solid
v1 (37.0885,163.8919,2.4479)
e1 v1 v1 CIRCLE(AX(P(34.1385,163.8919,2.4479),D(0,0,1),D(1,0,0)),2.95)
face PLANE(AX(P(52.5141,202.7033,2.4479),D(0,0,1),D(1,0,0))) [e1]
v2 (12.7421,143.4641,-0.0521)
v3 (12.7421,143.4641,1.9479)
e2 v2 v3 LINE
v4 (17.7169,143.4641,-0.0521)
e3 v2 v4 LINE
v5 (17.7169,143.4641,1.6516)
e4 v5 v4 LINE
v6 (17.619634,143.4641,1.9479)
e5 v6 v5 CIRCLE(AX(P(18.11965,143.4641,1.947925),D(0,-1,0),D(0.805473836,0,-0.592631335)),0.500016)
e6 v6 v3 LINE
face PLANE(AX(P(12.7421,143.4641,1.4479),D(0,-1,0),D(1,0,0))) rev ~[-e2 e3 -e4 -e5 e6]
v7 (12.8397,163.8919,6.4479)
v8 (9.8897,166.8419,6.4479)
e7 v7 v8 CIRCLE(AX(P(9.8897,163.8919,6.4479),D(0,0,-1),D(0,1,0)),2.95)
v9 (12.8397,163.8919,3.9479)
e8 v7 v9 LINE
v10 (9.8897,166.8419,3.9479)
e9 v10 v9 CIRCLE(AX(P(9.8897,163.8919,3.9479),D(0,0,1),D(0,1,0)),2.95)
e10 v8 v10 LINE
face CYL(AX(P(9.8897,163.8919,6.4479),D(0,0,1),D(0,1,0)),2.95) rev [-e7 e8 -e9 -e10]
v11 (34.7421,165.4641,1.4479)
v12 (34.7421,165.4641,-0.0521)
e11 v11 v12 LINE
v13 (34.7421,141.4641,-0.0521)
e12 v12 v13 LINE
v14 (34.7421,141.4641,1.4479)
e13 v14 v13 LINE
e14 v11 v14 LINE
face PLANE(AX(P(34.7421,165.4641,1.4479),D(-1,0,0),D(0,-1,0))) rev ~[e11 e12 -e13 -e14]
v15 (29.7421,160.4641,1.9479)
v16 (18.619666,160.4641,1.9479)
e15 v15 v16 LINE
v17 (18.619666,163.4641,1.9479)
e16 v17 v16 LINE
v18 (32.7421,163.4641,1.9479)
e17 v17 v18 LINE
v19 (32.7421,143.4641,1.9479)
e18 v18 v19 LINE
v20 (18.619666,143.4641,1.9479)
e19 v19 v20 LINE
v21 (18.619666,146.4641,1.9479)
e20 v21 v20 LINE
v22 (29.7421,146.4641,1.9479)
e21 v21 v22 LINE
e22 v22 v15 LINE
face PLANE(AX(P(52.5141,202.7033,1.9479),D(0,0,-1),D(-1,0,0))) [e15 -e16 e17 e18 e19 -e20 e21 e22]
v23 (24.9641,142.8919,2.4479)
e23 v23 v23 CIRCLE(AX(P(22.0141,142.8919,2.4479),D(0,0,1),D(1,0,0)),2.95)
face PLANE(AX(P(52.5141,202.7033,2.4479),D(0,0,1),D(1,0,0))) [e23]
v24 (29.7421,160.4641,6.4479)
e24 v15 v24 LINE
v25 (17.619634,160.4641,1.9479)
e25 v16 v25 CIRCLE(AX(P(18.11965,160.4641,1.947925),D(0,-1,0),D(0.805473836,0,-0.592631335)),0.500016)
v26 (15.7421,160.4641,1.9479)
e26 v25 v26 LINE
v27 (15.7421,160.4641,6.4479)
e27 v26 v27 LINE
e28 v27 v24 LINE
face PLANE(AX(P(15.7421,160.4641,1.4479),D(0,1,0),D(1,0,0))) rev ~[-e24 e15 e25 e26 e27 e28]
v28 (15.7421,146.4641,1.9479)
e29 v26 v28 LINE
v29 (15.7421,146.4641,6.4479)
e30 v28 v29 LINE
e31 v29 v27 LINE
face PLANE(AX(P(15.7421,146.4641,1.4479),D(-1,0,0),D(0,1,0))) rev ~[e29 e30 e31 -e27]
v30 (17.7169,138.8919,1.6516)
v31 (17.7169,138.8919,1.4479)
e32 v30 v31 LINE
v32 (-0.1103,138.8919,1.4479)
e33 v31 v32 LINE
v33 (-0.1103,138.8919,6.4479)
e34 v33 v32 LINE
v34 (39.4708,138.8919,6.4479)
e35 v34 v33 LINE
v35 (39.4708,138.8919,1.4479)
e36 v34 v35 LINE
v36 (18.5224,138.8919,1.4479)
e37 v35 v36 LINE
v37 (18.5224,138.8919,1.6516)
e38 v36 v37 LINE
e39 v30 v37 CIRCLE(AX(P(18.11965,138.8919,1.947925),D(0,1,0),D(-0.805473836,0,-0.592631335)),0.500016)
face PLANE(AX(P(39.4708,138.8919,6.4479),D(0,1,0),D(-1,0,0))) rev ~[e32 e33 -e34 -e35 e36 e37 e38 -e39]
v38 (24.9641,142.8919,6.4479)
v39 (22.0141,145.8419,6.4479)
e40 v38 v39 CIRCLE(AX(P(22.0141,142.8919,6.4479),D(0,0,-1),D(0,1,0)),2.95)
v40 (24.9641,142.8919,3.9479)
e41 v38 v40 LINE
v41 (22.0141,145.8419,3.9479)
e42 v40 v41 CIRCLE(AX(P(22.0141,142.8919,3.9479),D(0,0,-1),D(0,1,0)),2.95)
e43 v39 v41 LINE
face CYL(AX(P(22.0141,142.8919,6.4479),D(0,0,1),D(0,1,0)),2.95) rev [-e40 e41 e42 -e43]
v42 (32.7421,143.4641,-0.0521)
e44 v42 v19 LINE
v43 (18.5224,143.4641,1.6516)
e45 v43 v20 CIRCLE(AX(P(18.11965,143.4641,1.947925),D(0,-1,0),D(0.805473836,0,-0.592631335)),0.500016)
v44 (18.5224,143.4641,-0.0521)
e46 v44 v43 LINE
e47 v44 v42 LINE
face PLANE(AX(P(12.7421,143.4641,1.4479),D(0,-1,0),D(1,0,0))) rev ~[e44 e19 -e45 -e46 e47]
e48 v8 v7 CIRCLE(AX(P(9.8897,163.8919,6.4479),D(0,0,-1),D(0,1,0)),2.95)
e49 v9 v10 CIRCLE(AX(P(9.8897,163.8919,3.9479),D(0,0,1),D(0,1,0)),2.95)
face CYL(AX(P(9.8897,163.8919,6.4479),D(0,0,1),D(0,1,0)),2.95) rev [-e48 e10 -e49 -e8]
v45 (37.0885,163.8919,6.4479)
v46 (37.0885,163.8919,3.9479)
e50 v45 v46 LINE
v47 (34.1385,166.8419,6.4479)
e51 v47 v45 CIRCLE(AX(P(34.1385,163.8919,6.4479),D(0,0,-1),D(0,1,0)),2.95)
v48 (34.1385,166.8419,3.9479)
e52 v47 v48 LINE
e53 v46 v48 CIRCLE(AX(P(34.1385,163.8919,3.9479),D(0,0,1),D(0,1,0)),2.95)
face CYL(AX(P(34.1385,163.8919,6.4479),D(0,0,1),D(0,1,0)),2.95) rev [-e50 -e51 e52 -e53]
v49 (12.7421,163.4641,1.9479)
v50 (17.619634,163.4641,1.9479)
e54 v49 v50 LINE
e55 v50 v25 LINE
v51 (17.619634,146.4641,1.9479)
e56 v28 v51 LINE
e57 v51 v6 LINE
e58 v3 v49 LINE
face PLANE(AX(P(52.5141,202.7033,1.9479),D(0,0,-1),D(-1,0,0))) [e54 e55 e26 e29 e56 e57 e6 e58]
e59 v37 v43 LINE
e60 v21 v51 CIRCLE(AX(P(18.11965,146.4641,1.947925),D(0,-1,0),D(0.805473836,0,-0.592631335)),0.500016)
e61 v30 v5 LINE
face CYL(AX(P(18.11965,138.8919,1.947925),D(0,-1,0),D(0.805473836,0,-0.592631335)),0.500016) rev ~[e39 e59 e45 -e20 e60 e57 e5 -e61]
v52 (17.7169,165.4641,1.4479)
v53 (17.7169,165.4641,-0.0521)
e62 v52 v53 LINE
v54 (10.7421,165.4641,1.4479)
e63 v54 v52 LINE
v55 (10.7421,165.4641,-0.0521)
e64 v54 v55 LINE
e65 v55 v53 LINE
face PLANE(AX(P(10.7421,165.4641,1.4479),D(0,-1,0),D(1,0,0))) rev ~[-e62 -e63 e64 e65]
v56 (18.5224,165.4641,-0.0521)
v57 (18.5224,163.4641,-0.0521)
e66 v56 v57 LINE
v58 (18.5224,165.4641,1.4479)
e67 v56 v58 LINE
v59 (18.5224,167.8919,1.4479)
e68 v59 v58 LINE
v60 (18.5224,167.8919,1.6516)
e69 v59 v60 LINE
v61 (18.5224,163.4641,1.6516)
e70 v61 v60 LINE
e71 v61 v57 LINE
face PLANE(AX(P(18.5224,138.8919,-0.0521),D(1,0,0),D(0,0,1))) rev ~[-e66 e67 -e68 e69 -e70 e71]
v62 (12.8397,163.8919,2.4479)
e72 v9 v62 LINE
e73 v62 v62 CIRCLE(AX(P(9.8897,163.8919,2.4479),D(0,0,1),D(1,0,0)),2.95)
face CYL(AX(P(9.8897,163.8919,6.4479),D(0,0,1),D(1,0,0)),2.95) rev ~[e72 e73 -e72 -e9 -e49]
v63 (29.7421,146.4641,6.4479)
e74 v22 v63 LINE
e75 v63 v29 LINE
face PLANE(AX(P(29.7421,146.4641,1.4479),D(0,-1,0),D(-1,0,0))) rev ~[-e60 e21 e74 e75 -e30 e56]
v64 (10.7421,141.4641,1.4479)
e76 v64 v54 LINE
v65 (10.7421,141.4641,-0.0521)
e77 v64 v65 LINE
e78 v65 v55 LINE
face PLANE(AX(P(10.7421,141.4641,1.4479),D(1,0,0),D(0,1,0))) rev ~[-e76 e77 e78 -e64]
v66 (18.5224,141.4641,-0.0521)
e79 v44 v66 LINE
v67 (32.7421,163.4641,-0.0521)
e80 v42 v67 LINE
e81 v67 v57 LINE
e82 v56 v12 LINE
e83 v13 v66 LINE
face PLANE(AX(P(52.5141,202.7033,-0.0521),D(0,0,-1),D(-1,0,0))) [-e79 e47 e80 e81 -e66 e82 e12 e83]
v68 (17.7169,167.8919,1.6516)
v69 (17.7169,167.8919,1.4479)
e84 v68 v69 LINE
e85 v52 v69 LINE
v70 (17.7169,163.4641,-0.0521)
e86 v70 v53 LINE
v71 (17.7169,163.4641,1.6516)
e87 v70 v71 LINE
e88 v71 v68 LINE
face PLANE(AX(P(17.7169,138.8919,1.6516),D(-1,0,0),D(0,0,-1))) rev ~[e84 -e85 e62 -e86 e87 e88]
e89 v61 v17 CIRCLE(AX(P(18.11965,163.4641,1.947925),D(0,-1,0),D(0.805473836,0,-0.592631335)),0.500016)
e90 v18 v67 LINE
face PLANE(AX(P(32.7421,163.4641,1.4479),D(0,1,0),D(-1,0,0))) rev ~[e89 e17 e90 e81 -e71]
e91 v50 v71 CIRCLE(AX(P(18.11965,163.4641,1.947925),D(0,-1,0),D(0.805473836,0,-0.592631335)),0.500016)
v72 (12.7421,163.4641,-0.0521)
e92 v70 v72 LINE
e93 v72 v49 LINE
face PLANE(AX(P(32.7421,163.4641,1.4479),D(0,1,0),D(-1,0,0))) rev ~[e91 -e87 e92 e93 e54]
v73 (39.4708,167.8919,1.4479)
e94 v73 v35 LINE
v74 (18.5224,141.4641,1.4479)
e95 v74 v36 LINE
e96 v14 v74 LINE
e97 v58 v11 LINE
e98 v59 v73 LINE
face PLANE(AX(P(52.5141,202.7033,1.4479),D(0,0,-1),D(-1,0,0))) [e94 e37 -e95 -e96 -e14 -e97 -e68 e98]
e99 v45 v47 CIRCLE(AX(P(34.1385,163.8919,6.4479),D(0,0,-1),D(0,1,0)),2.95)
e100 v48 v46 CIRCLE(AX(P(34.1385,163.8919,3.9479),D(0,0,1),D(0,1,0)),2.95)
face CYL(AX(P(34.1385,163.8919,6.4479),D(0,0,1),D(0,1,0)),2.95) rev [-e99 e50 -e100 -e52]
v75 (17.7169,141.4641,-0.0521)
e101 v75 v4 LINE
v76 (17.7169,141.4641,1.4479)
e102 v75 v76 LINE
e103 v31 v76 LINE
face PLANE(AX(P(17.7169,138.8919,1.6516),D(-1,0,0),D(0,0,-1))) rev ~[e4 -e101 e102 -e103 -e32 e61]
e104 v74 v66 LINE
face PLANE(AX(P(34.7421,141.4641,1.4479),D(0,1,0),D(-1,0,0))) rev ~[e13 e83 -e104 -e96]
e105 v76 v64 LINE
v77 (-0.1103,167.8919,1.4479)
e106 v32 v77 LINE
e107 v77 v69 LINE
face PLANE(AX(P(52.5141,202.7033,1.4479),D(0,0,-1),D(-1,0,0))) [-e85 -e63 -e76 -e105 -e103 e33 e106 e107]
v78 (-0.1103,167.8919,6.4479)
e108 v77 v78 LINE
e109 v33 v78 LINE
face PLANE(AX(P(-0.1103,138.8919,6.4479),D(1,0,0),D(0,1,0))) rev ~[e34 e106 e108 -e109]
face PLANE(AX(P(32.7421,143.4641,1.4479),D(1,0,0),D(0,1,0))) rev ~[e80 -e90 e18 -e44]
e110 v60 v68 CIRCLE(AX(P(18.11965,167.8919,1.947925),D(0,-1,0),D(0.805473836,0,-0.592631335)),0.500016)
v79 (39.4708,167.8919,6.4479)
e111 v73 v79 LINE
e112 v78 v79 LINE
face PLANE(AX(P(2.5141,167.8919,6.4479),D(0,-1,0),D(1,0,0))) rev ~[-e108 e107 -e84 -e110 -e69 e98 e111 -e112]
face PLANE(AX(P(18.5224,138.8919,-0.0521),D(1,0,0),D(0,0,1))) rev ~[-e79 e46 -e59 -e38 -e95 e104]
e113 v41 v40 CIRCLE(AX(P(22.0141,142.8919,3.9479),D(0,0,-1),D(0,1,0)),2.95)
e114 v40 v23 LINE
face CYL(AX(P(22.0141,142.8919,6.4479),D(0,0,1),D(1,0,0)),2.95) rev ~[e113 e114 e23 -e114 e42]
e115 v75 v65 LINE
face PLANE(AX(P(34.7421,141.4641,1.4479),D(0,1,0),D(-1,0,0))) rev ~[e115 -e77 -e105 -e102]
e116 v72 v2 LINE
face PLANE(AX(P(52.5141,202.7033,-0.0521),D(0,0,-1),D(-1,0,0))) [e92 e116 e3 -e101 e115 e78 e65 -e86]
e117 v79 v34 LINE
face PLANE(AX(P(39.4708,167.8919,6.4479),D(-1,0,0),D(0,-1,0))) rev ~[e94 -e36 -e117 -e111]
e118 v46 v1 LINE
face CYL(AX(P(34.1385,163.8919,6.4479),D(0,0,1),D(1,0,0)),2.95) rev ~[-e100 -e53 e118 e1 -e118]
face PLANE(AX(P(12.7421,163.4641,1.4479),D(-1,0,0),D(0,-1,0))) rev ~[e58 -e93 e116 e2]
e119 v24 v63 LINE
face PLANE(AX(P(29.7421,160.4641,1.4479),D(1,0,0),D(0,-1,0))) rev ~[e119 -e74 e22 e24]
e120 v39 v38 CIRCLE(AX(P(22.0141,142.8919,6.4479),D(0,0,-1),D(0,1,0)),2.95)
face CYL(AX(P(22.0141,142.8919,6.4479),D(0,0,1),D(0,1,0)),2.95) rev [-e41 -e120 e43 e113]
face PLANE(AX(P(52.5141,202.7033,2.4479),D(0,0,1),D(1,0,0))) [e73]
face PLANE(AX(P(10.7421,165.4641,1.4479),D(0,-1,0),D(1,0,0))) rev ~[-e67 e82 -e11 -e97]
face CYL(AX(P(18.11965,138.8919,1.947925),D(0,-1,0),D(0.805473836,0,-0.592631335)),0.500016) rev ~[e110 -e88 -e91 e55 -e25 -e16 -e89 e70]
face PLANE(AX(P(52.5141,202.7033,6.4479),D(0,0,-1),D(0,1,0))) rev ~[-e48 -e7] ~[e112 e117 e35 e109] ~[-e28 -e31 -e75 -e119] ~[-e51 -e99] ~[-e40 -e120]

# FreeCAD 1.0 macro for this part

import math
import FreeCAD as App
import Part
import Sketcher
from FreeCAD import Vector

doc = App.newDocument("Part")
body = doc.addObject("PartDesign::Body", "Body")

# Sketch on XY plane
sketch1 = body.newObject("Sketcher::SketchObject", "Sketch")
sketch1.AttachmentSupport = (doc.getObject("XY_Plane"), [""])
sketch1.MapMode = "FlatFace"
sketch1.AttachmentOffset = App.Placement(Vector(0, 0, 6.4479), App.Rotation())
sketch1.addGeometry([
    Part.LineSegment(Vector(39.5, 167.9, 0), Vector(39.5, 138.9, 0)),  # 0
    Part.LineSegment(Vector(39.5, 138.9, 0), Vector(-0.1, 138.9, 0)),  # 1
    Part.LineSegment(Vector(-0.1, 138.9, 0), Vector(-0.1, 167.9, 0)),  # 2
    Part.LineSegment(Vector(-0.1, 167.9, 0), Vector(39.5, 167.9, 0)),  # 3
    Part.Circle(Vector(9.9, 163.9, 0), Vector(0, 0, 1), 3),  # 4
    Part.Circle(Vector(34.1, 163.9, 0), Vector(0, 0, 1), 3),  # 5
    Part.Circle(Vector(22, 142.9, 0), Vector(0, 0, 1), 3),  # 6
], False)
sketch1.addConstraint([
    Sketcher.Constraint("Coincident", 0, 2, 1, 1),
    Sketcher.Constraint("Coincident", 1, 2, 2, 1),
    Sketcher.Constraint("Coincident", 2, 2, 3, 1),
    Sketcher.Constraint("Coincident", 3, 2, 0, 1),
    Sketcher.Constraint("Vertical", 0),
    Sketcher.Constraint("Horizontal", 1),
    Sketcher.Constraint("Vertical", 2),
    Sketcher.Constraint("Horizontal", 3),
    Sketcher.Constraint("Equal", 4, 5),
    Sketcher.Constraint("Equal", 5, 6),
    Sketcher.Constraint("Horizontal", 4, 3, 5, 3),
    Sketcher.Constraint("Diameter", 4, 5.9),
    Sketcher.Constraint("DistanceY", 0, 2, 6, 3, 4.0),
    Sketcher.Constraint("DistanceX", 1, 2, 4, 3, 10.0),
    Sketcher.Constraint("DistanceY", 4, 3, 2, 2, 4.0),
    Sketcher.Constraint("DistanceY", 0, 2, 0, 1, 29.0),
    Sketcher.Constraint("DistanceX", 1, 2, 1, 1, 39.581),
    Sketcher.Constraint("DistanceY", -1, 1, 4, 3, 163.892),
    Sketcher.Constraint("DistanceX", -1, 1, 6, 3, 22.014),
    Sketcher.Constraint("DistanceX", -1, 1, 4, 3, 9.8897),
    Sketcher.Constraint("DistanceX", -1, 1, 5, 3, 34.1385),
])
pad1 = body.newObject("PartDesign::Pad", "Pad")
pad1.Profile = sketch1
pad1.Length = 2.5
pad1.Reversed = True

# Sketch on XY plane
sketch2 = body.newObject("Sketcher::SketchObject", "Sketch001")
sketch2.AttachmentSupport = (doc.getObject("XY_Plane"), [""])
sketch2.MapMode = "FlatFace"
sketch2.AttachmentOffset = App.Placement(Vector(0, 0, 3.9479), App.Rotation())
sketch2.addGeometry([
    Part.LineSegment(Vector(0, 168, 0), Vector(39, 168, 0)),
    Part.LineSegment(Vector(39, 168, 0), Vector(39, 139, 0)),
    Part.LineSegment(Vector(39, 139, 0), Vector(0, 139, 0)),
    Part.LineSegment(Vector(0, 139, 0), Vector(0, 168, 0)),
], False)
sketch2.addConstraint([
    Sketcher.Constraint("Coincident", 0, 2, 1, 1),
    Sketcher.Constraint("Coincident", 1, 2, 2, 1),
    Sketcher.Constraint("Coincident", 2, 2, 3, 1),
    Sketcher.Constraint("Coincident", 3, 2, 0, 1),
    Sketcher.Constraint("Horizontal", 0),
    Sketcher.Constraint("Vertical", 1),
    Sketcher.Constraint("Horizontal", 2),
    Sketcher.Constraint("Vertical", 3),
    Sketcher.Constraint("DistanceY", 1, 2, 1, 1, 29.0),
    Sketcher.Constraint("DistanceX", 0, 1, 0, 2, 39.581),
    Sketcher.Constraint("DistanceY", -1, 1, 0, 2, 167.892),
    Sketcher.Constraint("DistanceX", -1, 1, 0, 2, 39.4708),
])
pad2 = body.newObject("PartDesign::Pad", "Pad001")
pad2.Profile = sketch2
pad2.Length = 2.5
pad2.Reversed = True

# Sketch on XY plane
sketch3 = body.newObject("Sketcher::SketchObject", "Sketch002")
sketch3.AttachmentSupport = (doc.getObject("XY_Plane"), [""])
sketch3.MapMode = "FlatFace"
sketch3.AttachmentOffset = App.Placement(Vector(0, 0, 1.4479), App.Rotation())
sketch3.addGeometry([
    Part.LineSegment(Vector(16, 146, 0), Vector(16, 160, 0)),
    Part.LineSegment(Vector(16, 160, 0), Vector(30, 160, 0)),
    Part.LineSegment(Vector(30, 160, 0), Vector(30, 146, 0)),
    Part.LineSegment(Vector(30, 146, 0), Vector(16, 146, 0)),
], False)
sketch3.addConstraint([
    Sketcher.Constraint("Coincident", 0, 2, 1, 1),
    Sketcher.Constraint("Coincident", 1, 2, 2, 1),
    Sketcher.Constraint("Coincident", 2, 2, 3, 1),
    Sketcher.Constraint("Coincident", 3, 2, 0, 1),
    Sketcher.Constraint("Vertical", 0),
    Sketcher.Constraint("Horizontal", 1),
    Sketcher.Constraint("Vertical", 2),
    Sketcher.Constraint("Horizontal", 3),
    Sketcher.Constraint("Equal", 3, 0),
    Sketcher.Constraint("DistanceX", 1, 1, 1, 2, 14.0),
    Sketcher.Constraint("DistanceX", -1, 1, 0, 2, 15.742),
    Sketcher.Constraint("DistanceY", -1, 1, 0, 2, 160.464),
])
pocket1 = body.newObject("PartDesign::Pocket", "Pocket")
pocket1.Profile = sketch3
pocket1.Type = "ThroughAll"
pocket1.Reversed = True

# Sketch on XY plane
sketch4 = body.newObject("Sketcher::SketchObject", "Sketch003")
sketch4.AttachmentSupport = (doc.getObject("XY_Plane"), [""])
sketch4.MapMode = "FlatFace"
sketch4.AttachmentOffset = App.Placement(Vector(0, 0, 1.4479), App.Rotation())
sketch4.addGeometry([
    Part.LineSegment(Vector(33, 143, 0), Vector(13, 143, 0)),  # 0
    Part.LineSegment(Vector(13, 143, 0), Vector(13, 163, 0)),  # 1
    Part.LineSegment(Vector(13, 163, 0), Vector(33, 163, 0)),  # 2
    Part.LineSegment(Vector(33, 163, 0), Vector(33, 143, 0)),  # 3
    Part.LineSegment(Vector(16, 146, 0), Vector(30, 146, 0)),  # 4
    Part.LineSegment(Vector(30, 146, 0), Vector(30, 160, 0)),  # 5
    Part.LineSegment(Vector(30, 160, 0), Vector(16, 160, 0)),  # 6
    Part.LineSegment(Vector(16, 160, 0), Vector(16, 146, 0)),  # 7
], False)
sketch4.addConstraint([
    Sketcher.Constraint("Coincident", 0, 2, 1, 1),
    Sketcher.Constraint("Coincident", 1, 2, 2, 1),
    Sketcher.Constraint("Coincident", 2, 2, 3, 1),
    Sketcher.Constraint("Coincident", 3, 2, 0, 1),
    Sketcher.Constraint("Coincident", 4, 2, 5, 1),
    Sketcher.Constraint("Coincident", 5, 2, 6, 1),
    Sketcher.Constraint("Coincident", 6, 2, 7, 1),
    Sketcher.Constraint("Coincident", 7, 2, 4, 1),
    Sketcher.Constraint("Horizontal", 0),
    Sketcher.Constraint("Vertical", 1),
    Sketcher.Constraint("Horizontal", 2),
    Sketcher.Constraint("Vertical", 3),
    Sketcher.Constraint("Horizontal", 4),
    Sketcher.Constraint("Vertical", 5),
    Sketcher.Constraint("Horizontal", 6),
    Sketcher.Constraint("Vertical", 7),
    Sketcher.Constraint("Equal", 2, 1),
    Sketcher.Constraint("Equal", 6, 5),
    Sketcher.Constraint("DistanceX", 0, 2, 0, 1, 20.0),
    Sketcher.Constraint("DistanceX", 4, 1, 4, 2, 14.0),
    Sketcher.Constraint("DistanceX", 4, 2, 3, 2, 3.0),
    Sketcher.Constraint("DistanceY", 3, 2, 4, 2, 3.0),
    Sketcher.Constraint("DistanceX", -1, 1, 0, 2, 12.742),
    Sketcher.Constraint("DistanceY", -1, 1, 0, 2, 143.464),
])
pocket2 = body.newObject("PartDesign::Pocket", "Pocket001")
pocket2.Profile = sketch4
pocket2.Length = 0.5
pocket2.Reversed = True

# Sketch on XY plane
sketch5 = body.newObject("Sketcher::SketchObject", "Sketch004")
sketch5.AttachmentSupport = (doc.getObject("XY_Plane"), [""])
sketch5.MapMode = "FlatFace"
sketch5.AttachmentOffset = App.Placement(Vector(0, 0, 1.4479), App.Rotation())
sketch5.addGeometry([
    Part.LineSegment(Vector(35, 141, 0), Vector(11, 141, 0)),  # 0
    Part.LineSegment(Vector(11, 141, 0), Vector(11, 165, 0)),  # 1
    Part.LineSegment(Vector(11, 165, 0), Vector(35, 165, 0)),  # 2
    Part.LineSegment(Vector(35, 165, 0), Vector(35, 141, 0)),  # 3
    Part.LineSegment(Vector(33, 143, 0), Vector(33, 163, 0)),  # 4
    Part.LineSegment(Vector(33, 163, 0), Vector(13, 163, 0)),  # 5
    Part.LineSegment(Vector(13, 163, 0), Vector(13, 143, 0)),  # 6
    Part.LineSegment(Vector(13, 143, 0), Vector(33, 143, 0)),  # 7
], False)
sketch5.addConstraint([
    Sketcher.Constraint("Coincident", 0, 2, 1, 1),
    Sketcher.Constraint("Coincident", 1, 2, 2, 1),
    Sketcher.Constraint("Coincident", 2, 2, 3, 1),
    Sketcher.Constraint("Coincident", 3, 2, 0, 1),
    Sketcher.Constraint("Coincident", 4, 2, 5, 1),
    Sketcher.Constraint("Coincident", 5, 2, 6, 1),
    Sketcher.Constraint("Coincident", 6, 2, 7, 1),
    Sketcher.Constraint("Coincident", 7, 2, 4, 1),
    Sketcher.Constraint("Horizontal", 0),
    Sketcher.Constraint("Vertical", 1),
    Sketcher.Constraint("Horizontal", 2),
    Sketcher.Constraint("Vertical", 3),
    Sketcher.Constraint("Vertical", 4),
    Sketcher.Constraint("Horizontal", 5),
    Sketcher.Constraint("Vertical", 6),
    Sketcher.Constraint("Horizontal", 7),
    Sketcher.Constraint("Equal", 2, 1),
    Sketcher.Constraint("Equal", 7, 4),
    Sketcher.Constraint("DistanceX", 4, 2, 2, 2, 2.0),
    Sketcher.Constraint("DistanceY", 4, 2, 2, 2, 2.0),
    Sketcher.Constraint("DistanceX", 1, 2, 5, 2, 2.0),
    Sketcher.Constraint("DistanceX", 0, 2, 0, 1, 24.0),
    Sketcher.Constraint("DistanceX", -1, 1, 0, 2, 10.742),
    Sketcher.Constraint("DistanceY", -1, 1, 0, 2, 141.464),
])
pad3 = body.newObject("PartDesign::Pad", "Pad002")
pad3.Profile = sketch5
pad3.Length = 1.5
pad3.Reversed = True

# Sketch on XZ plane
sketch6 = body.newObject("Sketcher::SketchObject", "Sketch005")
sketch6.AttachmentSupport = (doc.getObject("XZ_Plane"), [""])
sketch6.MapMode = "FlatFace"
sketch6.AttachmentOffset = App.Placement(Vector(0, 0, -138.8919), App.Rotation())
sketch6.addGeometry([
    Part.LineSegment(Vector(17.7, 1.7, 0), Vector(17.7, -0.5, 0)),
    Part.LineSegment(Vector(17.7, -0.5, 0), Vector(18.5, -0.5, 0)),
    Part.LineSegment(Vector(18.5, -0.5, 0), Vector(18.5, 1.7, 0)),
    Part.ArcOfCircle(Part.Circle(Vector(18.1, 1.9, 0), Vector(0, 0, 1), 0.5), math.radians(-36), math.radians(216)),
], False)
sketch6.addConstraint([
    Sketcher.Constraint("Coincident", 0, 2, 1, 1),
    Sketcher.Constraint("Coincident", 1, 2, 2, 1),
    Sketcher.Constraint("Coincident", 2, 2, 3, 1),
    Sketcher.Constraint("Coincident", 3, 2, 0, 1),
    Sketcher.Constraint("Vertical", 0),
    Sketcher.Constraint("Horizontal", 1),
    Sketcher.Constraint("Vertical", 2),
    Sketcher.Constraint("Horizontal", 2, 2, 3, 2),
    Sketcher.Constraint("Radius", 3, 0.5),
    Sketcher.Constraint("DistanceX", 1, 1, 1, 2, 0.8055),
    Sketcher.Constraint("DistanceY", 0, 2, 0, 1, 2.1824),
    Sketcher.Constraint("DistanceY", -1, 1, 3, 3, 1.948),
    Sketcher.Constraint("DistanceX", -1, 1, 0, 2, 17.717),
])
pocket3 = body.newObject("PartDesign::Pocket", "Pocket002")
pocket3.Profile = sketch6
pocket3.Type = "ThroughAll"

# Sketch on XY plane
sketch7 = body.newObject("Sketcher::SketchObject", "Sketch006")
sketch7.AttachmentSupport = (doc.getObject("XY_Plane"), [""])
sketch7.MapMode = "FlatFace"
sketch7.AttachmentOffset = App.Placement(Vector(0, 0, 6.4479), App.Rotation())
sketch7.addGeometry([
    Part.Circle(Vector(9.9, 163.9, 0), Vector(0, 0, 1), 3),
    Part.Circle(Vector(22, 142.9, 0), Vector(0, 0, 1), 3),
    Part.Circle(Vector(34.1, 163.9, 0), Vector(0, 0, 1), 3),
], False)
sketch7.addConstraint([
    Sketcher.Constraint("Equal", 0, 1),
    Sketcher.Constraint("Equal", 1, 2),
    Sketcher.Constraint("Horizontal", 0, 3, 2, 3),
    Sketcher.Constraint("Diameter", 0, 5.9),
    Sketcher.Constraint("DistanceY", 1, 3, 0, 3, 21.0),
    Sketcher.Constraint("DistanceY", -1, 1, 0, 3, 163.892),
    Sketcher.Constraint("DistanceX", -1, 1, 1, 3, 22.014),
    Sketcher.Constraint("DistanceX", -1, 1, 0, 3, 9.8897),
    Sketcher.Constraint("DistanceX", -1, 1, 2, 3, 34.1385),
])
pocket4 = body.newObject("PartDesign::Pocket", "Pocket003")
pocket4.Profile = sketch7
pocket4.Length = 4

doc.recompute()
